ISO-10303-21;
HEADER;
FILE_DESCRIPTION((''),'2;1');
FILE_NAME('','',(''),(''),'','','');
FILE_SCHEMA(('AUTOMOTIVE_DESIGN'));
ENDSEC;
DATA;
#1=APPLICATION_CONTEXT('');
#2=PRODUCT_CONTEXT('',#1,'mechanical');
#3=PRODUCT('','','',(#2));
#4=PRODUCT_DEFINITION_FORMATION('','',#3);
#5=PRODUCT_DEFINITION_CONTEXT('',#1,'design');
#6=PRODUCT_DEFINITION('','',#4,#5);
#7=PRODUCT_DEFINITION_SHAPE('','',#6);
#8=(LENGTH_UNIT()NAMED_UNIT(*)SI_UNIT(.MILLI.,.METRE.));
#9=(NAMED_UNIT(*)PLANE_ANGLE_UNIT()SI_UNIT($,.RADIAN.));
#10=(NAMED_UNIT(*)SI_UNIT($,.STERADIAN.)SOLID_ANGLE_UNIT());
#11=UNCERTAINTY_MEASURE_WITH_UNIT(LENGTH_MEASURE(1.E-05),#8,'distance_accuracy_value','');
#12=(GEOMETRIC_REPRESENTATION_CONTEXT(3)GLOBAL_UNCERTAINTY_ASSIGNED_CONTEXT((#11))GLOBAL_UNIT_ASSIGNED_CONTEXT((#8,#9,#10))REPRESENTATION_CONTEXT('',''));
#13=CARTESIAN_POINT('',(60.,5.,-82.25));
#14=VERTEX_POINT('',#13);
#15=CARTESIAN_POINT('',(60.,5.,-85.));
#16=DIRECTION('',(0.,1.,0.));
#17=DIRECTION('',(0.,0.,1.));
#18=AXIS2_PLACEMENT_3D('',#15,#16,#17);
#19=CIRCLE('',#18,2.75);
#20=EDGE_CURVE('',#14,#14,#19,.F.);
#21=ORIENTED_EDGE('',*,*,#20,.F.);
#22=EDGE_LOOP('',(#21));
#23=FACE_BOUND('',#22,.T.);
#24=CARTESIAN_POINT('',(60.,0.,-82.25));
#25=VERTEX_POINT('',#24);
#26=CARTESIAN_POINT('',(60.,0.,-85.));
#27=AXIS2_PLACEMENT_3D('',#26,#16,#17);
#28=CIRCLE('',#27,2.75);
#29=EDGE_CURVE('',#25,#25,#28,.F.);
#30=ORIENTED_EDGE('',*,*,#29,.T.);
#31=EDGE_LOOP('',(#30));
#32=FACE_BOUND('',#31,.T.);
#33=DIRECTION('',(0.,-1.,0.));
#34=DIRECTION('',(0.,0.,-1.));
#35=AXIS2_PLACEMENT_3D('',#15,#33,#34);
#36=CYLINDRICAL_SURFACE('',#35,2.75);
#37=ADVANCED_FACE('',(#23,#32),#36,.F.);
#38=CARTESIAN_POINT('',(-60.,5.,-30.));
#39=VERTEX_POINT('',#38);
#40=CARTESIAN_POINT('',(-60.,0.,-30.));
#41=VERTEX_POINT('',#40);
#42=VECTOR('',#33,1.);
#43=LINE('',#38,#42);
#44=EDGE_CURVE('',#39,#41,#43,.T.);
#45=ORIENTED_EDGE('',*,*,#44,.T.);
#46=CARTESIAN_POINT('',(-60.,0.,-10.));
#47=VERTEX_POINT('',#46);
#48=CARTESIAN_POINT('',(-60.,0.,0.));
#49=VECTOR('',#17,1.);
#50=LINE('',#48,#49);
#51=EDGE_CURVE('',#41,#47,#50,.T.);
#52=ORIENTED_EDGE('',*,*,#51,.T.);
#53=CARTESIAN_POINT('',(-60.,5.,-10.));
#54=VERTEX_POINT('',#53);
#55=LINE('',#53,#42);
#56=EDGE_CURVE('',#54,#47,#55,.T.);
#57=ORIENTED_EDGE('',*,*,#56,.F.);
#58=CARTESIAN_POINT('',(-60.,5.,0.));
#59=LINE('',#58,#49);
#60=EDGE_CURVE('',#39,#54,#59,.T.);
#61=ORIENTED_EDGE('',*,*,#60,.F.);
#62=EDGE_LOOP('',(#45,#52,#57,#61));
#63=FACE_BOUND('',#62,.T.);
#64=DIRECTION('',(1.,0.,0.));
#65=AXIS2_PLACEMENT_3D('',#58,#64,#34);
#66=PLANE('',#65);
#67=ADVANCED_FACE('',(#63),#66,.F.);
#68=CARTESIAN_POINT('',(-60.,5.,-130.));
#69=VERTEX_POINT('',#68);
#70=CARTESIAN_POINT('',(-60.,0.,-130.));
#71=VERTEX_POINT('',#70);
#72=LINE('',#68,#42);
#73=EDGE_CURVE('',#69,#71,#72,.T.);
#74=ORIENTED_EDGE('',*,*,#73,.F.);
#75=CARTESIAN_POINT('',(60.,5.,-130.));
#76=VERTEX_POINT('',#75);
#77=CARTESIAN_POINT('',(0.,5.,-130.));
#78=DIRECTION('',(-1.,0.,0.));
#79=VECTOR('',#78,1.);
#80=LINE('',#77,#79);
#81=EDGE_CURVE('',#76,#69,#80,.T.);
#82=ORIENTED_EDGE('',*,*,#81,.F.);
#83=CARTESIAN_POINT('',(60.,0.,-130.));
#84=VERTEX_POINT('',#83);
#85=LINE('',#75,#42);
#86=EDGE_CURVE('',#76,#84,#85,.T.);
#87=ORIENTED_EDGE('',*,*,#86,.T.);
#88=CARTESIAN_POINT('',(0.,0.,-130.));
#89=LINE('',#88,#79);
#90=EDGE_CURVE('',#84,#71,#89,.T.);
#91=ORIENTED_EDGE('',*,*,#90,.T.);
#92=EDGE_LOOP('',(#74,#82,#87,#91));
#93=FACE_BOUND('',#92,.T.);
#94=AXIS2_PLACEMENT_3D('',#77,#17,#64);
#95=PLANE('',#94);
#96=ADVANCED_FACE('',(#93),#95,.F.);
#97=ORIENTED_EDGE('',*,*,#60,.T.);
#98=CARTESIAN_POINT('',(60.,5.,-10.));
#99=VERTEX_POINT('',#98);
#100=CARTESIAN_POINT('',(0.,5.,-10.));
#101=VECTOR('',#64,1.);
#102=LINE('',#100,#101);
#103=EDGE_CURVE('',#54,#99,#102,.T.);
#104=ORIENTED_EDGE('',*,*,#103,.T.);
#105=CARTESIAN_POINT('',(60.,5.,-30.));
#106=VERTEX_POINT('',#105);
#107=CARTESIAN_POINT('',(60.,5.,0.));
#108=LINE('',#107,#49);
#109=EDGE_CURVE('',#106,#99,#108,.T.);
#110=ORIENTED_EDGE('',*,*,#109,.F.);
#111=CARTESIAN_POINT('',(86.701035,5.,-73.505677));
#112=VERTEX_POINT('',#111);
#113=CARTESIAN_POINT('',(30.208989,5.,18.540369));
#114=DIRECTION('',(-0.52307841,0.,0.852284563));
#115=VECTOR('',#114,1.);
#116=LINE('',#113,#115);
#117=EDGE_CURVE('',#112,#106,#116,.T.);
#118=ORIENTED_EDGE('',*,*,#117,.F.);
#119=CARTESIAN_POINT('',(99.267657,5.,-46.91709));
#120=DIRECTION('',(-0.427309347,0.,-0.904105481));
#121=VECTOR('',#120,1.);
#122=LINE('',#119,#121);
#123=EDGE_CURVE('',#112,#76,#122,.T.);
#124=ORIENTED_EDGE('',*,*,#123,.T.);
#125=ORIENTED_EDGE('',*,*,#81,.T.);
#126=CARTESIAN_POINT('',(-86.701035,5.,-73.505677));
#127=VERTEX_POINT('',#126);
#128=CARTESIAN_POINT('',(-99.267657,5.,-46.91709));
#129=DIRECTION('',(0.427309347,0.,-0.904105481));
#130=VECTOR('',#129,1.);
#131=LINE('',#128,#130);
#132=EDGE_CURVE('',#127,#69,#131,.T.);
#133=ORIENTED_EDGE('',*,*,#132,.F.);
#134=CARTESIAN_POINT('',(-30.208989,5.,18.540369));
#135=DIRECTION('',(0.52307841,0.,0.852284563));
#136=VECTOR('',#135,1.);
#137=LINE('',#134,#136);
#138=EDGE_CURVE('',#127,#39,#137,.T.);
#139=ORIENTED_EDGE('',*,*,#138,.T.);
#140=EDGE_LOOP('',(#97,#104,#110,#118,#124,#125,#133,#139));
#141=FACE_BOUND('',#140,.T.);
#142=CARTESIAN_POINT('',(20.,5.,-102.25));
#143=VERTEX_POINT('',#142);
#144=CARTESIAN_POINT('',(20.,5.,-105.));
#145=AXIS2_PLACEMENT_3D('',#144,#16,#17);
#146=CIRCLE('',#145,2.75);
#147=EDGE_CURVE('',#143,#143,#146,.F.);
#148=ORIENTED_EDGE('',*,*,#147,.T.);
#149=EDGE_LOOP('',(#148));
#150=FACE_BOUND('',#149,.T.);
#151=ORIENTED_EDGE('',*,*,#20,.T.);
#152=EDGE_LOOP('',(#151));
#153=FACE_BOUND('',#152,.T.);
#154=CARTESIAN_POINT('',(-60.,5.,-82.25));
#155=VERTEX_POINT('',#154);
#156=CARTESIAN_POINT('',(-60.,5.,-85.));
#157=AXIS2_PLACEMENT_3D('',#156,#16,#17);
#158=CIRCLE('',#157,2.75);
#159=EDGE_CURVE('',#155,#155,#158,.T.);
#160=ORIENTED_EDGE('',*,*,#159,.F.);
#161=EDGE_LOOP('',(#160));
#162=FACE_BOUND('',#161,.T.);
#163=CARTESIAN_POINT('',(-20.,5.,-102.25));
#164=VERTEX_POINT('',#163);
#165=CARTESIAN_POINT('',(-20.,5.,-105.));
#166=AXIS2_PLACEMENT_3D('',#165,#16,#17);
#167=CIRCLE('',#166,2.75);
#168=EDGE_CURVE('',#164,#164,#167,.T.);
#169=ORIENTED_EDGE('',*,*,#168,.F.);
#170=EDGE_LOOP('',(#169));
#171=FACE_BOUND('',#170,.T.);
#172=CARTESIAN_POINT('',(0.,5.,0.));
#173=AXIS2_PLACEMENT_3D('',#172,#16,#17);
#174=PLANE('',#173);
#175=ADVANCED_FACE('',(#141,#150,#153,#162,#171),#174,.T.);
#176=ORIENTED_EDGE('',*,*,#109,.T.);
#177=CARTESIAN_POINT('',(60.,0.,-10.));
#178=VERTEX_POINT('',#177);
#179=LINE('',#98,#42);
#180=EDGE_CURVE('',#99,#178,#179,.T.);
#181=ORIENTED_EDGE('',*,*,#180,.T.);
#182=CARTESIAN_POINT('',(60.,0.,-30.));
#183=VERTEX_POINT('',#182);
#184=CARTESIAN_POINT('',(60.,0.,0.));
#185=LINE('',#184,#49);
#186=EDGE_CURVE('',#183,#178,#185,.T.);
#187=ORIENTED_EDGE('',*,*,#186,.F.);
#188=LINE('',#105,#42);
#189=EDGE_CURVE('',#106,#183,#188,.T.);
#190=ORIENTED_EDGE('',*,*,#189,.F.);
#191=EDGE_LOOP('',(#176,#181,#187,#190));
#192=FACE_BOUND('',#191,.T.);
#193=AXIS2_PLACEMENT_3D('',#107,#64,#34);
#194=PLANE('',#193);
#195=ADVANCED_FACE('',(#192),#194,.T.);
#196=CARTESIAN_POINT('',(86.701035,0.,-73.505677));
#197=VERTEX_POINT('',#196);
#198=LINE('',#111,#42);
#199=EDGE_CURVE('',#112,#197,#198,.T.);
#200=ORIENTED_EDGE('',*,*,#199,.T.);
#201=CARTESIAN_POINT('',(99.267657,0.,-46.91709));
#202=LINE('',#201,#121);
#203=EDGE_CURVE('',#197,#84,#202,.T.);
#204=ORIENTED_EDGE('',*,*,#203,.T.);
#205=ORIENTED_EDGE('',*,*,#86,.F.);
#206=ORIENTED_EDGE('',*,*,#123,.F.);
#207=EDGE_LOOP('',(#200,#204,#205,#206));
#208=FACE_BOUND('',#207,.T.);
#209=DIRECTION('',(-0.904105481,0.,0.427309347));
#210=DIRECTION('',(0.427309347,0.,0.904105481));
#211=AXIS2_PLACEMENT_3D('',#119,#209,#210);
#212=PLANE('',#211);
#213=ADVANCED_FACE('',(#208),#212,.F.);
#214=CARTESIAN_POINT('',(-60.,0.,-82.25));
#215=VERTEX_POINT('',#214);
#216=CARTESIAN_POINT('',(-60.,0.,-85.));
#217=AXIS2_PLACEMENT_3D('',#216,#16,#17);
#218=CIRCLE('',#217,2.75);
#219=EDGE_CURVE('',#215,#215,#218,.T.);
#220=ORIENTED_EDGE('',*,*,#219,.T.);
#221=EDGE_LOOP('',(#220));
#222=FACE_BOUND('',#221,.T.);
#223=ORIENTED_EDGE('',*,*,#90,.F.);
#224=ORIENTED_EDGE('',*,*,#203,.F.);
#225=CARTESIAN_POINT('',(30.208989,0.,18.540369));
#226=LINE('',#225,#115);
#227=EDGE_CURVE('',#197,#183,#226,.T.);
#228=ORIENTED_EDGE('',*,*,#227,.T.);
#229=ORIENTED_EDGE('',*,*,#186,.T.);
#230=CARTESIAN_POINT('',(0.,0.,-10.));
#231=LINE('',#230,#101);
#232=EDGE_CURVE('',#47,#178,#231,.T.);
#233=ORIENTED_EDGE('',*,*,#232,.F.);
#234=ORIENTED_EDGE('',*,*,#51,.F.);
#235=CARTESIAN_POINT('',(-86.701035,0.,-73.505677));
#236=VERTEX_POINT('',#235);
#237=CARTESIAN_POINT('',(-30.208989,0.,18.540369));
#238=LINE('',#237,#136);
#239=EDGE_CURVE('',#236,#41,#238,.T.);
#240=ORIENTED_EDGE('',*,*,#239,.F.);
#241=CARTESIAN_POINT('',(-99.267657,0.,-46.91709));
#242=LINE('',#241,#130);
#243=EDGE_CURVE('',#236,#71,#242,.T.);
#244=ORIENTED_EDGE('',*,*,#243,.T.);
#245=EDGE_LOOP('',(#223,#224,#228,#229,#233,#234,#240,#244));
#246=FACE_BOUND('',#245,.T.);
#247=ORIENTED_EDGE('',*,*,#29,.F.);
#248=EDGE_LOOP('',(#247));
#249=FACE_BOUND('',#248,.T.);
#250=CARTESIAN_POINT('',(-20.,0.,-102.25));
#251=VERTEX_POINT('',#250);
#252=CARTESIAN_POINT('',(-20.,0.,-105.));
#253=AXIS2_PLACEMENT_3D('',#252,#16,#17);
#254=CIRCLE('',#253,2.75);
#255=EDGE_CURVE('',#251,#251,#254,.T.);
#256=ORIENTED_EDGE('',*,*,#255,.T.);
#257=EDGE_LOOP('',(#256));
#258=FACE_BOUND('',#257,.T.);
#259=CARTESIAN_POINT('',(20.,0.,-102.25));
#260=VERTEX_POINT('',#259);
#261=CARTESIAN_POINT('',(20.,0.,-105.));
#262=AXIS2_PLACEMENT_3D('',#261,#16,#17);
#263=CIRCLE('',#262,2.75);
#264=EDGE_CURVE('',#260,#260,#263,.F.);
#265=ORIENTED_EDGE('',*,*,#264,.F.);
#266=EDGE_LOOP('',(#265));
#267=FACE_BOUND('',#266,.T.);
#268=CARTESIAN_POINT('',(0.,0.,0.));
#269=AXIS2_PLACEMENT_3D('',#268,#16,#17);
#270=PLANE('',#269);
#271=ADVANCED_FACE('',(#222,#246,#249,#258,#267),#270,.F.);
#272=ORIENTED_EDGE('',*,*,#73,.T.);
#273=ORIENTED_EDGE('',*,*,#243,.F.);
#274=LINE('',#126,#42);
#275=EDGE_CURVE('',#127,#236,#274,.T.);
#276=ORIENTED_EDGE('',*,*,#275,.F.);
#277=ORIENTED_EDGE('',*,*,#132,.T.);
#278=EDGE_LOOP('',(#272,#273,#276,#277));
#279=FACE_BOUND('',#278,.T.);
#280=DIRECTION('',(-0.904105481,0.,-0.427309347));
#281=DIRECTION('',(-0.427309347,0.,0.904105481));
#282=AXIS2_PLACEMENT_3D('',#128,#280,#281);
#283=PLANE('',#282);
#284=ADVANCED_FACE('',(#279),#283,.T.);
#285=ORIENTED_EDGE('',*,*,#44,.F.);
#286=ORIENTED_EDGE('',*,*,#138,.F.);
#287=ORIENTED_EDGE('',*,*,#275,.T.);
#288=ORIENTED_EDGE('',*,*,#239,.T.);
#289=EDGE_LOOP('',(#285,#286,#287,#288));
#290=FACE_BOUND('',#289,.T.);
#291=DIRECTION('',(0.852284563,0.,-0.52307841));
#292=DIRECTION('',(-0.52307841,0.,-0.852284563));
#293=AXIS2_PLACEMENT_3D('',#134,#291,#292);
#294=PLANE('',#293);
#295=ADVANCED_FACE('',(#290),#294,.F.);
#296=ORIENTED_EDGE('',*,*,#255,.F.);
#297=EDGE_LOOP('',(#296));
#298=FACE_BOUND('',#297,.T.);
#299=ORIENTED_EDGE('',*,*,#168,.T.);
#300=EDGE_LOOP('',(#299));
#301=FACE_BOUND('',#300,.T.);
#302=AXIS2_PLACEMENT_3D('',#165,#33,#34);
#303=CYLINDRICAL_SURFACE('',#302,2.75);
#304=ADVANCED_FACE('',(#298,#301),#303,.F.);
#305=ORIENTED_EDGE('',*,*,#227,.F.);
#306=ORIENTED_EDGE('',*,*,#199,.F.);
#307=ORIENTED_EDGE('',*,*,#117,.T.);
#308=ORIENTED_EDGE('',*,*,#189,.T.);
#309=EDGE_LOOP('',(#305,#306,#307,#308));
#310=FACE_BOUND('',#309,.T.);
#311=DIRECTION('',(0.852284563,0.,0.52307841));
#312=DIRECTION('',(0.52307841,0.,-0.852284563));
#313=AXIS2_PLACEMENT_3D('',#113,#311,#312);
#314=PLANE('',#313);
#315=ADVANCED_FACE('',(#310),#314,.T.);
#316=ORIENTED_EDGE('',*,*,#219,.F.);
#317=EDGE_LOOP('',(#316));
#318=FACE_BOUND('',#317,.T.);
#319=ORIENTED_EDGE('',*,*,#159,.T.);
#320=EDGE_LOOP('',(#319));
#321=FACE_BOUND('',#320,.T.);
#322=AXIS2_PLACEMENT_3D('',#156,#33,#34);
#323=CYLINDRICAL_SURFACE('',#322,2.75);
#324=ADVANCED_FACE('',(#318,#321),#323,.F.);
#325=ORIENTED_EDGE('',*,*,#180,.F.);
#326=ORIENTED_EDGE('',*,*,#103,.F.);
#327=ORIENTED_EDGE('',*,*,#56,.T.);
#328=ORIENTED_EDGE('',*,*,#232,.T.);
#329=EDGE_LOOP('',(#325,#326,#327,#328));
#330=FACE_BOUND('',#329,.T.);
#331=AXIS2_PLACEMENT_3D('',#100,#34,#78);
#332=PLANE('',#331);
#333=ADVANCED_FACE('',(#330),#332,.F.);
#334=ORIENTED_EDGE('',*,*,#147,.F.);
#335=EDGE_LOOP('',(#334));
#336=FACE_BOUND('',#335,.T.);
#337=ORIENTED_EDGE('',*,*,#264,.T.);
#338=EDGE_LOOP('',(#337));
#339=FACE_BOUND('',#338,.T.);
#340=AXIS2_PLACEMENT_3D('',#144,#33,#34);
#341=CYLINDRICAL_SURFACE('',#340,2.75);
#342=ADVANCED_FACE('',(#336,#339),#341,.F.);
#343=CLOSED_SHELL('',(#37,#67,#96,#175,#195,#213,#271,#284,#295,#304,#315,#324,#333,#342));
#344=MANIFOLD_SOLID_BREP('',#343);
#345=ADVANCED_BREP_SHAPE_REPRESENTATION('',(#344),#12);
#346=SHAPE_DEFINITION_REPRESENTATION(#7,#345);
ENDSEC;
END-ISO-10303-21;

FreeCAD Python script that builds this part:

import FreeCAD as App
import Part
import Sketcher


def add_polygon(sketch, points):
    """Adds a closed chain of lines whose ends are joined by coincident constraints."""
    first, n = sketch.GeometryCount, len(points)
    for a, b in zip(points, points[1:] + points[:1]):
        sketch.addGeometry(Part.LineSegment(App.Vector(*a, 0), App.Vector(*b, 0)), False)
    for i in range(n):
        sketch.addConstraint(Sketcher.Constraint("Coincident", first + i, 2, first + (i + 1) % n, 1))

doc = App.newDocument("Part")
body = doc.addObject("PartDesign::Body", "Body")

# Sketch on XZ plane
sketch1 = doc.addObject("Sketcher::SketchObject", "Sketch")
body.addObject(sketch1)
sketch1.AttachmentSupport = (doc.XZ_Plane, [""])
sketch1.MapMode = "FlatFace"
add_polygon(sketch1, [(60, -30), (86.7, -73.5), (60, -130), (-60, -130), (-86.7, -73.5), (-60, -30), (-60, -10), (60, -10)])  # lines 0-7
sketch1.addGeometry(Part.Circle(App.Vector(-60, -85, 0), App.Vector(0, 0, 1), 2.8), False)  # 8
sketch1.addGeometry(Part.Circle(App.Vector(60, -85, 0), App.Vector(0, 0, 1), 2.8), False)  # 9
sketch1.addGeometry(Part.Circle(App.Vector(-20, -105, 0), App.Vector(0, 0, 1), 2.8), False)  # 10
sketch1.addGeometry(Part.Circle(App.Vector(20, -105, 0), App.Vector(0, 0, 1), 2.8), False)  # 11
sketch1.addConstraint([
    Sketcher.Constraint("Horizontal", 2),
    Sketcher.Constraint("Vertical", 5),
    Sketcher.Constraint("Horizontal", 6),
    Sketcher.Constraint("Vertical", 7),
    Sketcher.Constraint("Equal", 8, 9),
    Sketcher.Constraint("Equal", 9, 10),
    Sketcher.Constraint("Equal", 10, 11),
    Sketcher.Constraint("Symmetric", 8, 3, 9, 3, -2),
    Sketcher.Constraint("Symmetric", 10, 3, 11, 3, -2),
    Sketcher.Constraint("Symmetric", 0, 2, 3, 2, -2),
    Sketcher.Constraint("Symmetric", 4, 2, 7, 2, -2),
    Sketcher.Constraint("Vertical", 9, 3, 1, 2),
    Sketcher.Constraint("Vertical", 8, 3, 2, 2),
    Sketcher.Constraint("Vertical", 2, 2, 4, 2),
    Sketcher.Constraint("Diameter", 8, 5.5),
    Sketcher.Constraint("DistanceX", 2, 2, 2, 1, 120.0),
    Sketcher.Constraint("DistanceY", 5, 1, 5, 2, 20.0),
    Sketcher.Constraint("DistanceY", 8, 3, -1, 1, 85.0),
    Sketcher.Constraint("DistanceX", 10, 3, -1, 1, 20.0),
    Sketcher.Constraint("DistanceY", 10, 3, -1, 1, 105.0),
    Sketcher.Constraint("DistanceY", 1, 2, -1, 1, 130.0),
    Sketcher.Constraint("DistanceY", 4, 2, -1, 1, 30.0),
    Sketcher.Constraint("Distance", 0, 51.045952),
    Sketcher.Constraint("Distance", 1, 62.486429),
])
pad1 = doc.addObject("PartDesign::Pad", "Pad")
body.addObject(pad1)
pad1.Profile = sketch1
pad1.Length = 5
pad1.Reversed = True

doc.recompute()
